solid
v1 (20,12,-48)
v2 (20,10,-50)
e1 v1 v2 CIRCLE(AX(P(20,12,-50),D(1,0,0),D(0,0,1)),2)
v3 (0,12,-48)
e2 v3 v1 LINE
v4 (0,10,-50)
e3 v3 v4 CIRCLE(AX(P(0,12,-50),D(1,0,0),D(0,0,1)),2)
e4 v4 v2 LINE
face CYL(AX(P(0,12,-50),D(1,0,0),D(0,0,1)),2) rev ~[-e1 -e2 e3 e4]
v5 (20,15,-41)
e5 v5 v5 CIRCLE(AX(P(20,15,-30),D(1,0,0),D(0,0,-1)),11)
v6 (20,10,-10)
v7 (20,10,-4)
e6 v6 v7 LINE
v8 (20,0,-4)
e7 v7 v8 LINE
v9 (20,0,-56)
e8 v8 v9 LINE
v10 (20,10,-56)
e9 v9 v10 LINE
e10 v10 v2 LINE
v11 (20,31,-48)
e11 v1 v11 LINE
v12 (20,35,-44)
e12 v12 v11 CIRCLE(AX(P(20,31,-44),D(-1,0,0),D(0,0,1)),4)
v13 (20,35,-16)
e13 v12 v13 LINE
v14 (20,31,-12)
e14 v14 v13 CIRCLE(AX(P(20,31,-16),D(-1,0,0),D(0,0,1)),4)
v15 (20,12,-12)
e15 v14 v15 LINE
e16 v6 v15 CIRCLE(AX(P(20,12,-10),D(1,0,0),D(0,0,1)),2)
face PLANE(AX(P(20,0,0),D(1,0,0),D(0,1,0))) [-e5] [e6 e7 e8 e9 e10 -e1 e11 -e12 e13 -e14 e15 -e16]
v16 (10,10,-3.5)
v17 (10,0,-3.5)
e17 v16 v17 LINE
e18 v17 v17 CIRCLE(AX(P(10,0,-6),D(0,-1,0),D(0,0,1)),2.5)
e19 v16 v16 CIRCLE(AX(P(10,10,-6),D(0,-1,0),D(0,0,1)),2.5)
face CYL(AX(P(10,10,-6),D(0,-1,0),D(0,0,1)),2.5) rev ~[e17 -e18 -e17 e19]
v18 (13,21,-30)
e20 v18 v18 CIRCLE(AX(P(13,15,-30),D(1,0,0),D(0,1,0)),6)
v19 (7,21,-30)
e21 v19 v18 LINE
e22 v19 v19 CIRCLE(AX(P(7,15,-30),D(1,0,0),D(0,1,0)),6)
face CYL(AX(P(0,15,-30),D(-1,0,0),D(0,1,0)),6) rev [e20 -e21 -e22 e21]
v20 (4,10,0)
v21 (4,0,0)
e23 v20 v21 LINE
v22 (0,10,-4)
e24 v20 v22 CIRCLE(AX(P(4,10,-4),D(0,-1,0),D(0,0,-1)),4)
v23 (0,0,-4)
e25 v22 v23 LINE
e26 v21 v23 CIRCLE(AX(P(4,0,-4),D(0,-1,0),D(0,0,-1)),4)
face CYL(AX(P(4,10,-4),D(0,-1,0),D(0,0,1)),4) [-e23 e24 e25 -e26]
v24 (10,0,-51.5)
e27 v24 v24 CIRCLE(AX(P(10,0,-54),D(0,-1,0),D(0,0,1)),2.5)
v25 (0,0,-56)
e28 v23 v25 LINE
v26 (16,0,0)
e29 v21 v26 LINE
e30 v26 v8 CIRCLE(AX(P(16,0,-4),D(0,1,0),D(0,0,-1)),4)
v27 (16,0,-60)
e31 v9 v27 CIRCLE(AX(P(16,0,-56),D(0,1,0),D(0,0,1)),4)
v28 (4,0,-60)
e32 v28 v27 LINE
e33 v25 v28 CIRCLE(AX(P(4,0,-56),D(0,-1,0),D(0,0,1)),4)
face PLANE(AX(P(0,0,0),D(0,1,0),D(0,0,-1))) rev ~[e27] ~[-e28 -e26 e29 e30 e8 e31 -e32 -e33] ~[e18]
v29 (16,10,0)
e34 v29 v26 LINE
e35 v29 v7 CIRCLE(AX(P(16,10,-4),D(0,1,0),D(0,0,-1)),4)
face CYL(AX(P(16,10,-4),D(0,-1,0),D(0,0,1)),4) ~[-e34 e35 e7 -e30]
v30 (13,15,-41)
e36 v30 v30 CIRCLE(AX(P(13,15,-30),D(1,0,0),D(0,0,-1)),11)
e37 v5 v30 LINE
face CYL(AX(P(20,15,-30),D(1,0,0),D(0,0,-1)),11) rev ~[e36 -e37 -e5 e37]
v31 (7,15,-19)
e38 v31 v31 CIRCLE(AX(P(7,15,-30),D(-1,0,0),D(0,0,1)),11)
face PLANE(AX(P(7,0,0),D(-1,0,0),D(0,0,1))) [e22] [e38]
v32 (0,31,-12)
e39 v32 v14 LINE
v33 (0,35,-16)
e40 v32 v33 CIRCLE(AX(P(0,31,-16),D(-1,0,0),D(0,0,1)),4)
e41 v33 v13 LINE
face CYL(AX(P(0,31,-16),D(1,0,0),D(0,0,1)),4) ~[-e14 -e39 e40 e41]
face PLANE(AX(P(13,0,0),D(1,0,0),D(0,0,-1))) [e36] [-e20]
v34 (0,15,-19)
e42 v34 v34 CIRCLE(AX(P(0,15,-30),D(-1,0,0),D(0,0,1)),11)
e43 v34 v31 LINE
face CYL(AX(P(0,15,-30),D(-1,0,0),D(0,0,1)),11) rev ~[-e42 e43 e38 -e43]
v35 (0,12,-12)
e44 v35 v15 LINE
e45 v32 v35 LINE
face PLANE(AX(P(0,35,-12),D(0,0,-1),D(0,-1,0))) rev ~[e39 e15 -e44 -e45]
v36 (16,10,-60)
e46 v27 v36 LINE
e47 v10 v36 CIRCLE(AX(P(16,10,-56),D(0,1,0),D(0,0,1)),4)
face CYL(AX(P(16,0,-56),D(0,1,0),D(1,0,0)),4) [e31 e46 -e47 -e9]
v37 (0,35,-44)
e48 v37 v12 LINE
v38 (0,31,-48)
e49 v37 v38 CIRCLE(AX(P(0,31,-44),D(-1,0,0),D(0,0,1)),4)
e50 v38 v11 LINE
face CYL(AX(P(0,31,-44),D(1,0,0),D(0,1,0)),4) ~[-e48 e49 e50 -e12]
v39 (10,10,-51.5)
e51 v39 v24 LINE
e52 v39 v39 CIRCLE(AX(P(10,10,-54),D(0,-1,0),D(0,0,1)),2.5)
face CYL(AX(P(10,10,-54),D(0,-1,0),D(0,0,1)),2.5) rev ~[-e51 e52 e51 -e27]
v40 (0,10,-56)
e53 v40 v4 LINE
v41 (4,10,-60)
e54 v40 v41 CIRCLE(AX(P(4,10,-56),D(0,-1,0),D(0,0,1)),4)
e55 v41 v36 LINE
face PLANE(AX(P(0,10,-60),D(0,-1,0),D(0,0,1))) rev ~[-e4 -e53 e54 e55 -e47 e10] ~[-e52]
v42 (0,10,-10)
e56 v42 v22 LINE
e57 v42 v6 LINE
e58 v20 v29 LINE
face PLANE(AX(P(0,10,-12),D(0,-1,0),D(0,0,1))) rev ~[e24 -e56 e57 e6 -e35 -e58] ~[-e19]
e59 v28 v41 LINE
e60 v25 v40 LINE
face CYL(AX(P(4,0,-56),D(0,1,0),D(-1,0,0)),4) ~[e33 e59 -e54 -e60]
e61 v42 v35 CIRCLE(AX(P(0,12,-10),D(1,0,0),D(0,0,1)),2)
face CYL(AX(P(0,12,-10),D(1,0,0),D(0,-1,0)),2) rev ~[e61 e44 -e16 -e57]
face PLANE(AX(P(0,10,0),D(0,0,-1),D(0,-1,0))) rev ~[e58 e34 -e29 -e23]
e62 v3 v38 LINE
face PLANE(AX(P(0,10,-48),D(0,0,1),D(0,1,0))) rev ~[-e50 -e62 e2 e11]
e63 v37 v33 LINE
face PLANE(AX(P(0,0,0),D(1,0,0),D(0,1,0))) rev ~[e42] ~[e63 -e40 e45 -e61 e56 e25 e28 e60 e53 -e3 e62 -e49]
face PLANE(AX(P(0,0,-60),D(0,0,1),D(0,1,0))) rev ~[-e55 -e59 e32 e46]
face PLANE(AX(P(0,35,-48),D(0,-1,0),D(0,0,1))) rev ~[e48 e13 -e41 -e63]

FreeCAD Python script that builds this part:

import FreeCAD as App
import Part
import Sketcher

V = App.Vector


def edges_at(feature, points):
    """Names of the edges that pass closest to the given points."""
    edges = feature.Shape.Edges
    near = lambda p: min(range(len(edges)), key=lambda i: edges[i].distToShape(Part.Vertex(*p))[0])
    return sorted({f"Edge{near(p) + 1}" for p in points})

doc = App.newDocument("Part")
body = doc.addObject("PartDesign::Body", "Body")

# Sketch on YZ plane
sketch1 = body.newObject("Sketcher::SketchObject", "Sketch")
sketch1.AttachmentSupport = (doc.getObject("YZ_Plane"), [""])
sketch1.MapMode = "FlatFace"
sketch1.addGeometry([
    Part.LineSegment(V(10, 0, 0), V(0, 0, 0)),  # 0
    Part.LineSegment(V(0, 0, 0), V(0, -60, 0)),  # 1
    Part.LineSegment(V(0, -60, 0), V(10, -60, 0)),  # 2
    Part.LineSegment(V(10, -60, 0), V(10, -48, 0)),  # 3
    Part.LineSegment(V(10, -48, 0), V(35, -48, 0)),  # 4
    Part.LineSegment(V(35, -48, 0), V(35, -12, 0)),  # 5
    Part.LineSegment(V(35, -12, 0), V(10, -12, 0)),  # 6
    Part.LineSegment(V(10, -12, 0), V(10, 0, 0)),  # 7
    Part.Circle(V(15, -30, 0), V(0, 0, 1), 6),  # 8
], False)
sketch1.addConstraint([
    Sketcher.Constraint("Coincident", 0, 2, 1, 1),
    Sketcher.Constraint("Coincident", 1, 2, 2, 1),
    Sketcher.Constraint("Coincident", 2, 2, 3, 1),
    Sketcher.Constraint("Coincident", 3, 2, 4, 1),
    Sketcher.Constraint("Coincident", 4, 2, 5, 1),
    Sketcher.Constraint("Coincident", 5, 2, 6, 1),
    Sketcher.Constraint("Coincident", 6, 2, 7, 1),
    Sketcher.Constraint("Coincident", 7, 2, 0, 1),
    Sketcher.Constraint("Horizontal", 0),
    Sketcher.Constraint("Vertical", 1),
    Sketcher.Constraint("Horizontal", 2),
    Sketcher.Constraint("Vertical", 3),
    Sketcher.Constraint("Horizontal", 4),
    Sketcher.Constraint("Vertical", 5),
    Sketcher.Constraint("Horizontal", 6),
    Sketcher.Constraint("Vertical", 7),
    Sketcher.Constraint("Coincident", 0, 2, -1, 1),
    Sketcher.Constraint("Vertical", 3, 2, 6, 2),
    Sketcher.Constraint("Equal", 3, 7),
    Sketcher.Constraint("Diameter", 8, 12.0),
    Sketcher.Constraint("DistanceX", 0, 2, 0, 1, 10.0),
    Sketcher.Constraint("DistanceY", 3, 1, 3, 2, 12.0),
    Sketcher.Constraint("DistanceY", 5, 1, 5, 2, 36.0),
    Sketcher.Constraint("DistanceX", -1, 1, 4, 2, 35.0),
    Sketcher.Constraint("DistanceY", 3, 2, 8, 3, 18.0),
    Sketcher.Constraint("DistanceX", 8, 3, 4, 2, 20.0),
])
pad1 = body.newObject("PartDesign::Pad", "Pad")
pad1.Profile = sketch1
pad1.Length = 20

# Sketch on YZ plane
sketch2 = body.newObject("Sketcher::SketchObject", "Sketch001")
sketch2.AttachmentSupport = (doc.getObject("YZ_Plane"), [""])
sketch2.MapMode = "FlatFace"
sketch2.AttachmentOffset = App.Placement(V(0, 0, 20), App.Rotation())
sketch2.addGeometry([
    Part.Circle(V(15, -30, 0), V(0, 0, 1), 11),
    Part.Circle(V(15, -30, 0), V(0, 0, 1), 6),
], False)
sketch2.addConstraint([
    Sketcher.Constraint("Coincident", 1, 3, 0, 3),
    Sketcher.Constraint("Diameter", 0, 22.0),
    Sketcher.Constraint("Diameter", 1, 12.0),
    Sketcher.Constraint("DistanceX", -1, 1, 0, 3, 15.0),
    Sketcher.Constraint("DistanceY", 0, 3, -1, 1, 30.0),
])
pocket1 = body.newObject("PartDesign::Pocket", "Pocket")
pocket1.Profile = sketch2
pocket1.Length = 7

# Sketch on YZ plane
sketch3 = body.newObject("Sketcher::SketchObject", "Sketch002")
sketch3.AttachmentSupport = (doc.getObject("YZ_Plane"), [""])
sketch3.MapMode = "FlatFace"
sketch3.addGeometry([
    Part.Circle(V(15, -30, 0), V(0, 0, 1), 11),
    Part.Circle(V(15, -30, 0), V(0, 0, 1), 6),
], False)
sketch3.addConstraint([
    Sketcher.Constraint("Coincident", 1, 3, 0, 3),
    Sketcher.Constraint("Diameter", 0, 22.0),
    Sketcher.Constraint("Diameter", 1, 12.0),
    Sketcher.Constraint("DistanceX", -1, 1, 0, 3, 15.0),
    Sketcher.Constraint("DistanceY", 0, 3, -1, 1, 30.0),
])
pocket2 = body.newObject("PartDesign::Pocket", "Pocket001")
pocket2.Profile = sketch3
pocket2.Length = 7
pocket2.Reversed = True

# Sketch on XZ plane
sketch4 = body.newObject("Sketcher::SketchObject", "Sketch003")
sketch4.AttachmentSupport = (doc.getObject("XZ_Plane"), [""])
sketch4.MapMode = "FlatFace"
sketch4.AttachmentOffset = App.Placement(V(0, 0, -10), App.Rotation())
sketch4.addGeometry([
    Part.Circle(V(10, -6, 0), V(0, 0, 1), 2.5),
    Part.Circle(V(10, -54, 0), V(0, 0, 1), 2.5),
], False)
sketch4.addConstraint([
    Sketcher.Constraint("Equal", 0, 1),
    Sketcher.Constraint("Vertical", 0, 3, 1, 3),
    Sketcher.Constraint("Diameter", 0, 5.0),
    Sketcher.Constraint("DistanceX", -1, 1, 0, 3, 10.0),
    Sketcher.Constraint("DistanceY", 0, 3, -1, 1, 6.0),
    Sketcher.Constraint("DistanceY", 1, 3, -1, 1, 54.0),
])
doc.recompute()
hole = body.newObject("PartDesign::Hole", "Hole")
hole.Profile = sketch4
hole.ThreadType = "None"
hole.Diameter = 5
hole.DepthType = "ThroughAll"
hole.Reversed = True
doc.recompute()

fillet = body.newObject("PartDesign::Fillet", "Fillet")
fillet.Base = (hole, edges_at(hole, [
    (20, 5, 0),
    (20, 5, -60),
    (0, 5, -60),
    (0, 5, 0),
]))
fillet.Radius = 4
doc.recompute()

fillet2 = body.newObject("PartDesign::Fillet", "Fillet001")
fillet2.Base = (fillet, edges_at(fillet, [(10, 10, -12), (10, 10, -48)]))
fillet2.Radius = 2
doc.recompute()

fillet3 = body.newObject("PartDesign::Fillet", "Fillet002")
fillet3.Base = (fillet2, edges_at(fillet2, [(10, 35, -12), (10, 35, -48)]))
fillet3.Radius = 4

doc.recompute()
